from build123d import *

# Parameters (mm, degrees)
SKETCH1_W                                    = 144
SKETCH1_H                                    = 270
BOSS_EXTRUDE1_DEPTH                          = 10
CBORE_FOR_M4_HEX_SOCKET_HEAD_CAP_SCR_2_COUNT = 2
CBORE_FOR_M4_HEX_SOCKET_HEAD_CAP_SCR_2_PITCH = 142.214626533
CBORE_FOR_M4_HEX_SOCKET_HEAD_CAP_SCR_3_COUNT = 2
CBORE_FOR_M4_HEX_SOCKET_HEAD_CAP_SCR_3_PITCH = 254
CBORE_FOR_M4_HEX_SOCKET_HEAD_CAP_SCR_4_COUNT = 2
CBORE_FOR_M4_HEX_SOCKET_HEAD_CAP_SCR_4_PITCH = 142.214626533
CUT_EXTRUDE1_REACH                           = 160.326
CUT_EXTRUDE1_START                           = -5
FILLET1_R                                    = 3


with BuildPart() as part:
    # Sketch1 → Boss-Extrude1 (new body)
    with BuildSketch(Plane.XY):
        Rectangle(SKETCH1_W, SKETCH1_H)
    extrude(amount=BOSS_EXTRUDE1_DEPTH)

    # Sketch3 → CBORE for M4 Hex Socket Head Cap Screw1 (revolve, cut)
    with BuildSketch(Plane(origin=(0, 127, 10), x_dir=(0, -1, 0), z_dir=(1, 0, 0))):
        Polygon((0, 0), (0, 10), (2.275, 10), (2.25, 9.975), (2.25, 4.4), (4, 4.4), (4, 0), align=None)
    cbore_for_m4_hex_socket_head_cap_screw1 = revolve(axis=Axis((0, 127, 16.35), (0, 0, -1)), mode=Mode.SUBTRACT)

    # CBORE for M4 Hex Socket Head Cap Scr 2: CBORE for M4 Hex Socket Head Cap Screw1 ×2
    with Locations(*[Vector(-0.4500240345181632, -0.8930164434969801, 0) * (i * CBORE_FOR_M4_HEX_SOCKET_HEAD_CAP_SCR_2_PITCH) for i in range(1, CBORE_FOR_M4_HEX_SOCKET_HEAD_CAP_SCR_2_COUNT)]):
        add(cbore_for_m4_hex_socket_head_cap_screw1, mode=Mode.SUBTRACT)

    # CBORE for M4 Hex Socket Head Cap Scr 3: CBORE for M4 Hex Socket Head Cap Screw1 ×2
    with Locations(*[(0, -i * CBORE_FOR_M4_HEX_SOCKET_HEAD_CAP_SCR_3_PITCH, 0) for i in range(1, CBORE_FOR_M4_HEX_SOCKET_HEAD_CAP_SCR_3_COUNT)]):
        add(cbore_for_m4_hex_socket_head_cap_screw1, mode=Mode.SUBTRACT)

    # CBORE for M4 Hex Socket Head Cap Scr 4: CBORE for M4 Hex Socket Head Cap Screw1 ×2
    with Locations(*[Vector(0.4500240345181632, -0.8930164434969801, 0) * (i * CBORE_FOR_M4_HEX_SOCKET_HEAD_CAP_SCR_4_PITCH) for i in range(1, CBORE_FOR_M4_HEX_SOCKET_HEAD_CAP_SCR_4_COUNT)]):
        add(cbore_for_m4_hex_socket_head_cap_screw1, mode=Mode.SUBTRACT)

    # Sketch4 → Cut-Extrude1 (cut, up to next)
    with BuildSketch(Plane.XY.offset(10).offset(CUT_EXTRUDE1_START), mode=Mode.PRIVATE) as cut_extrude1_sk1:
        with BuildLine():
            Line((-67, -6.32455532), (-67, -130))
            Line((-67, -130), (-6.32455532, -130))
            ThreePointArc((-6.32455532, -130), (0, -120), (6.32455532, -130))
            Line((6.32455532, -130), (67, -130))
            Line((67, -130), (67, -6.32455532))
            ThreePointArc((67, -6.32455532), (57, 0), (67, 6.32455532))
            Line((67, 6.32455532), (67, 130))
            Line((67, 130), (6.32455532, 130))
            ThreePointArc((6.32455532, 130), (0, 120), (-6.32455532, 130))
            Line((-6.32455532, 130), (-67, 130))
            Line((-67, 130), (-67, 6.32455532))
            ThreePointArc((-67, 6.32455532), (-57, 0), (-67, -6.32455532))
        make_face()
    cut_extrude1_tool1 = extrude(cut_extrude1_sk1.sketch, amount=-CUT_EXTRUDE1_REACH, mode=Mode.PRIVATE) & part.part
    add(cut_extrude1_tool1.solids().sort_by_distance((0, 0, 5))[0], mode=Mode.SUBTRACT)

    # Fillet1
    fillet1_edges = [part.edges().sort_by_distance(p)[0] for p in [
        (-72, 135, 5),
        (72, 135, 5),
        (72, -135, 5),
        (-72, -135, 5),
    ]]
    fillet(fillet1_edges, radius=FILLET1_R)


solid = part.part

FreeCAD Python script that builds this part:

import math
import FreeCAD as App
import Part
import Sketcher
from FreeCAD import Vector
Q = App.Units.Quantity


def edges_at(feature, points):
    """Names of the edges that pass closest to the given points."""
    edges = feature.Shape.Edges
    near = lambda p: min(range(len(edges)), key=lambda i: edges[i].distToShape(Part.Vertex(*p))[0])
    return sorted({f"Edge{near(p) + 1}" for p in points})

doc = App.newDocument("Part")
body = doc.addObject("PartDesign::Body", "Body")

# Sketch on XY plane
sketch1 = body.newObject("Sketcher::SketchObject", "Sketch")
sketch1.AttachmentSupport = (doc.getObject("XY_Plane"), [""])
sketch1.MapMode = "FlatFace"
sketch1.addGeometry(Part.LineSegment(Vector(-72, 135, 0), Vector(-72, -135, 0)), False)
sketch1.addGeometry(Part.LineSegment(Vector(-72, -135, 0), Vector(72, -135, 0)), False)
sketch1.addGeometry(Part.LineSegment(Vector(72, -135, 0), Vector(72, 135, 0)), False)
sketch1.addGeometry(Part.LineSegment(Vector(72, 135, 0), Vector(-72, 135, 0)), False)
sketch1.addConstraint(Sketcher.Constraint("Coincident", 0, 2, 1, 1))
sketch1.addConstraint(Sketcher.Constraint("Coincident", 1, 2, 2, 1))
sketch1.addConstraint(Sketcher.Constraint("Coincident", 2, 2, 3, 1))
sketch1.addConstraint(Sketcher.Constraint("Coincident", 3, 2, 0, 1))
sketch1.addConstraint(Sketcher.Constraint("Vertical", 0))
sketch1.addConstraint(Sketcher.Constraint("Horizontal", 1))
sketch1.addConstraint(Sketcher.Constraint("Vertical", 2))
sketch1.addConstraint(Sketcher.Constraint("Horizontal", 3))
sketch1.addConstraint(Sketcher.Constraint("Symmetric", 0, 2, 2, 2, -1, 1))
sketch1.addConstraint(Sketcher.Constraint("DistanceX", 1, 1, 1, 2, Q("144 mm")))
sketch1.addConstraint(Sketcher.Constraint("DistanceY", 0, 2, 0, 1, Q("270 mm")))
pad1 = body.newObject("PartDesign::Pad", "Pad")
pad1.Profile = sketch1
pad1.Length = 10

# Sketch on YZ plane
sketch2 = body.newObject("Sketcher::SketchObject", "Sketch001")
sketch2.AttachmentSupport = (doc.getObject("YZ_Plane"), [""])
sketch2.MapMode = "FlatFace"
sketch2.addGeometry(Part.LineSegment(Vector(127, 0, 0), Vector(127, 10, 0)), False)
sketch2.addGeometry(Part.LineSegment(Vector(127, 10, 0), Vector(123, 10, 0)), False)
sketch2.addGeometry(Part.LineSegment(Vector(123, 10, 0), Vector(123, 5.6, 0)), False)
sketch2.addGeometry(Part.LineSegment(Vector(123, 5.6, 0), Vector(124.75, 5.6, 0)), False)
sketch2.addGeometry(Part.LineSegment(Vector(124.75, 5.6, 0), Vector(124.75, 0.025, 0)), False)
sketch2.addGeometry(Part.LineSegment(Vector(124.75, 0.025, 0), Vector(124.725, 0, 0)), False)
sketch2.addGeometry(Part.LineSegment(Vector(124.725, 0, 0), Vector(127, 0, 0)), False)
sketch2.addGeometry(Part.LineSegment(Vector(127, 10, 0), Vector(127, 0, 0)), True)  # axis
sketch2.addConstraint(Sketcher.Constraint("Coincident", 0, 2, 1, 1))
sketch2.addConstraint(Sketcher.Constraint("Coincident", 1, 2, 2, 1))
sketch2.addConstraint(Sketcher.Constraint("Coincident", 2, 2, 3, 1))
sketch2.addConstraint(Sketcher.Constraint("Coincident", 3, 2, 4, 1))
sketch2.addConstraint(Sketcher.Constraint("Coincident", 4, 2, 5, 1))
sketch2.addConstraint(Sketcher.Constraint("Coincident", 5, 2, 6, 1))
sketch2.addConstraint(Sketcher.Constraint("Coincident", 6, 2, 0, 1))
sketch2.addConstraint(Sketcher.Constraint("Vertical", 0))
sketch2.addConstraint(Sketcher.Constraint("Horizontal", 1))
sketch2.addConstraint(Sketcher.Constraint("Vertical", 2))
sketch2.addConstraint(Sketcher.Constraint("Horizontal", 3))
sketch2.addConstraint(Sketcher.Constraint("Vertical", 4))
sketch2.addConstraint(Sketcher.Constraint("Horizontal", 6))
sketch2.addConstraint(Sketcher.Constraint("Vertical", 7))
sketch2.addConstraint(Sketcher.Constraint("Coincident", 7, 1, 0, 2))
sketch2.addConstraint(Sketcher.Constraint("PointOnObject", 5, 2, -1))
sketch2.addConstraint(Sketcher.Constraint("PointOnObject", 7, 2, -1))
sketch2.addConstraint(Sketcher.Constraint("DistanceX", 1, 2, 1, 1, Q("4 mm")))
sketch2.addConstraint(Sketcher.Constraint("DistanceY", 0, 1, 0, 2, Q("10 mm")))
sketch2.addConstraint(Sketcher.Constraint("Angle", 5, Q("-135 deg")))
sketch2.addConstraint(Sketcher.Constraint("DistanceY", 2, 2, 2, 1, Q("4.4 mm")))
sketch2.addConstraint(Sketcher.Constraint("DistanceX", -1, 1, 0, 2, Q("127 mm")))
sketch2.addConstraint(Sketcher.Constraint("DistanceX", 3, 1, 3, 2, Q("1.75 mm")))
sketch2.addConstraint(Sketcher.Constraint("DistanceX", 6, 1, 6, 2, Q("2.275 mm")))
groove = body.newObject("PartDesign::Groove", "Groove")
groove.Profile = sketch2
groove.ReferenceAxis = (sketch2, ["Axis0"])
groove.Angle = 360
doc.recompute()

datumline = body.newObject("PartDesign::Line", "DatumLine")
datumline.Placement = App.Placement(Vector(0, 0, 0), App.Rotation(Vector(0, 0, 1), Vector(-0.450024035, -0.893016443, 0)))
linearpattern = body.newObject("PartDesign::LinearPattern", "LinearPattern")
linearpattern.Originals = [groove]
linearpattern.Direction = (datumline, [""])
linearpattern.Mode = "offset"
linearpattern.Offset = 142.214627
linearpattern.Occurrences = 2
body.Tip = linearpattern
doc.recompute()

linearpattern2 = body.newObject("PartDesign::LinearPattern", "LinearPattern001")
linearpattern2.Originals = [groove]
linearpattern2.Direction = (doc.getObject("Y_Axis"), [""])
linearpattern2.Mode = "offset"
linearpattern2.Offset = 254
linearpattern2.Occurrences = 2
linearpattern2.Reversed = True
body.Tip = linearpattern2
doc.recompute()

datumline2 = body.newObject("PartDesign::Line", "DatumLine001")
datumline2.Placement = App.Placement(Vector(0, 0, 0), App.Rotation(Vector(0, 0, 1), Vector(0.450024035, -0.893016443, 0)))
linearpattern3 = body.newObject("PartDesign::LinearPattern", "LinearPattern002")
linearpattern3.Originals = [groove]
linearpattern3.Direction = (datumline2, [""])
linearpattern3.Mode = "offset"
linearpattern3.Offset = 142.214627
linearpattern3.Occurrences = 2
body.Tip = linearpattern3

# Sketch on XY plane
sketch3 = body.newObject("Sketcher::SketchObject", "Sketch002")
sketch3.AttachmentSupport = (doc.getObject("XY_Plane"), [""])
sketch3.MapMode = "FlatFace"
sketch3.AttachmentOffset = App.Placement(Vector(0, 0, 5), App.Rotation())
sketch3.addGeometry(Part.LineSegment(Vector(-67, -6, 0), Vector(-67, -130, 0)), False)
sketch3.addGeometry(Part.LineSegment(Vector(-67, -130, 0), Vector(-6, -130, 0)), False)
sketch3.addGeometry(Part.ArcOfCircle(Part.Circle(Vector(0, -127, 0), Vector(0, 0, 1), 7), math.radians(-25), math.radians(205)), False)
sketch3.addGeometry(Part.LineSegment(Vector(6, -130, 0), Vector(67, -130, 0)), False)
sketch3.addGeometry(Part.LineSegment(Vector(67, -130, 0), Vector(67, -6, 0)), False)
sketch3.addGeometry(Part.ArcOfCircle(Part.Circle(Vector(64, 0, 0), Vector(0, 0, 1), 7), math.radians(65), math.radians(295)), False)
sketch3.addGeometry(Part.LineSegment(Vector(67, 6, 0), Vector(67, 130, 0)), False)
sketch3.addGeometry(Part.LineSegment(Vector(67, 130, 0), Vector(6, 130, 0)), False)
sketch3.addGeometry(Part.ArcOfCircle(Part.Circle(Vector(0, 127, 0), Vector(0, 0, 1), 7), math.radians(155), math.radians(385)), False)
sketch3.addGeometry(Part.LineSegment(Vector(-6, 130, 0), Vector(-67, 130, 0)), False)
sketch3.addGeometry(Part.LineSegment(Vector(-67, 130, 0), Vector(-67, 6, 0)), False)
sketch3.addGeometry(Part.ArcOfCircle(Part.Circle(Vector(-64, 0, 0), Vector(0, 0, 1), 7), math.radians(-115), math.radians(115)), False)
sketch3.addConstraint(Sketcher.Constraint("Coincident", 0, 2, 1, 1))
sketch3.addConstraint(Sketcher.Constraint("Coincident", 1, 2, 2, 2))
sketch3.addConstraint(Sketcher.Constraint("Coincident", 2, 1, 3, 1))
sketch3.addConstraint(Sketcher.Constraint("Coincident", 3, 2, 4, 1))
sketch3.addConstraint(Sketcher.Constraint("Coincident", 4, 2, 5, 2))
sketch3.addConstraint(Sketcher.Constraint("Coincident", 5, 1, 6, 1))
sketch3.addConstraint(Sketcher.Constraint("Coincident", 6, 2, 7, 1))
sketch3.addConstraint(Sketcher.Constraint("Coincident", 7, 2, 8, 2))
sketch3.addConstraint(Sketcher.Constraint("Coincident", 8, 1, 9, 1))
sketch3.addConstraint(Sketcher.Constraint("Coincident", 9, 2, 10, 1))
sketch3.addConstraint(Sketcher.Constraint("Coincident", 10, 2, 11, 2))
sketch3.addConstraint(Sketcher.Constraint("Coincident", 11, 1, 0, 1))
sketch3.addConstraint(Sketcher.Constraint("Vertical", 0))
sketch3.addConstraint(Sketcher.Constraint("Horizontal", 1))
sketch3.addConstraint(Sketcher.Constraint("Horizontal", 3))
sketch3.addConstraint(Sketcher.Constraint("Vertical", 4))
sketch3.addConstraint(Sketcher.Constraint("Vertical", 6))
sketch3.addConstraint(Sketcher.Constraint("Horizontal", 7))
sketch3.addConstraint(Sketcher.Constraint("Horizontal", 9))
sketch3.addConstraint(Sketcher.Constraint("Vertical", 10))
sketch3.addConstraint(Sketcher.Constraint("Equal", 2, 5))
sketch3.addConstraint(Sketcher.Constraint("Equal", 5, 8))
sketch3.addConstraint(Sketcher.Constraint("Equal", 8, 11))
sketch3.addConstraint(Sketcher.Constraint("Symmetric", 2, 3, 8, 3, -1, 1))
sketch3.addConstraint(Sketcher.Constraint("Symmetric", 5, 3, 11, 3, -1, 1))
sketch3.addConstraint(Sketcher.Constraint("Symmetric", 0, 2, 6, 2, -1, 1))
sketch3.addConstraint(Sketcher.Constraint("Symmetric", 3, 2, 9, 2, -1, 1))
sketch3.addConstraint(Sketcher.Constraint("Symmetric", 1, 2, 2, 1, -2))
sketch3.addConstraint(Sketcher.Constraint("Symmetric", 5, 1, 10, 2, -2))
sketch3.addConstraint(Sketcher.Constraint("Radius", 2, Q("7 mm")))
sketch3.addConstraint(Sketcher.Constraint("DistanceY", 2, 3, -1, 1, Q("127 mm")))
sketch3.addConstraint(Sketcher.Constraint("DistanceX", -1, 1, 5, 3, Q("64 mm")))
sketch3.addConstraint(Sketcher.Constraint("DistanceX", 0, 2, -1, 1, Q("67 mm")))
sketch3.addConstraint(Sketcher.Constraint("DistanceY", 0, 2, -1, 1, Q("130 mm")))
pocket1 = body.newObject("PartDesign::Pocket", "Pocket")
pocket1.Profile = sketch3
pocket1.Type = "UpToFirst"
doc.recompute()

fillet = body.newObject("PartDesign::Fillet", "Fillet")
fillet.Base = (pocket1, edges_at(pocket1, [
    (-72, 135, 5),
    (72, 135, 5),
    (72, -135, 5),
    (-72, -135, 5),
]))
fillet.Radius = 3

doc.recompute()
